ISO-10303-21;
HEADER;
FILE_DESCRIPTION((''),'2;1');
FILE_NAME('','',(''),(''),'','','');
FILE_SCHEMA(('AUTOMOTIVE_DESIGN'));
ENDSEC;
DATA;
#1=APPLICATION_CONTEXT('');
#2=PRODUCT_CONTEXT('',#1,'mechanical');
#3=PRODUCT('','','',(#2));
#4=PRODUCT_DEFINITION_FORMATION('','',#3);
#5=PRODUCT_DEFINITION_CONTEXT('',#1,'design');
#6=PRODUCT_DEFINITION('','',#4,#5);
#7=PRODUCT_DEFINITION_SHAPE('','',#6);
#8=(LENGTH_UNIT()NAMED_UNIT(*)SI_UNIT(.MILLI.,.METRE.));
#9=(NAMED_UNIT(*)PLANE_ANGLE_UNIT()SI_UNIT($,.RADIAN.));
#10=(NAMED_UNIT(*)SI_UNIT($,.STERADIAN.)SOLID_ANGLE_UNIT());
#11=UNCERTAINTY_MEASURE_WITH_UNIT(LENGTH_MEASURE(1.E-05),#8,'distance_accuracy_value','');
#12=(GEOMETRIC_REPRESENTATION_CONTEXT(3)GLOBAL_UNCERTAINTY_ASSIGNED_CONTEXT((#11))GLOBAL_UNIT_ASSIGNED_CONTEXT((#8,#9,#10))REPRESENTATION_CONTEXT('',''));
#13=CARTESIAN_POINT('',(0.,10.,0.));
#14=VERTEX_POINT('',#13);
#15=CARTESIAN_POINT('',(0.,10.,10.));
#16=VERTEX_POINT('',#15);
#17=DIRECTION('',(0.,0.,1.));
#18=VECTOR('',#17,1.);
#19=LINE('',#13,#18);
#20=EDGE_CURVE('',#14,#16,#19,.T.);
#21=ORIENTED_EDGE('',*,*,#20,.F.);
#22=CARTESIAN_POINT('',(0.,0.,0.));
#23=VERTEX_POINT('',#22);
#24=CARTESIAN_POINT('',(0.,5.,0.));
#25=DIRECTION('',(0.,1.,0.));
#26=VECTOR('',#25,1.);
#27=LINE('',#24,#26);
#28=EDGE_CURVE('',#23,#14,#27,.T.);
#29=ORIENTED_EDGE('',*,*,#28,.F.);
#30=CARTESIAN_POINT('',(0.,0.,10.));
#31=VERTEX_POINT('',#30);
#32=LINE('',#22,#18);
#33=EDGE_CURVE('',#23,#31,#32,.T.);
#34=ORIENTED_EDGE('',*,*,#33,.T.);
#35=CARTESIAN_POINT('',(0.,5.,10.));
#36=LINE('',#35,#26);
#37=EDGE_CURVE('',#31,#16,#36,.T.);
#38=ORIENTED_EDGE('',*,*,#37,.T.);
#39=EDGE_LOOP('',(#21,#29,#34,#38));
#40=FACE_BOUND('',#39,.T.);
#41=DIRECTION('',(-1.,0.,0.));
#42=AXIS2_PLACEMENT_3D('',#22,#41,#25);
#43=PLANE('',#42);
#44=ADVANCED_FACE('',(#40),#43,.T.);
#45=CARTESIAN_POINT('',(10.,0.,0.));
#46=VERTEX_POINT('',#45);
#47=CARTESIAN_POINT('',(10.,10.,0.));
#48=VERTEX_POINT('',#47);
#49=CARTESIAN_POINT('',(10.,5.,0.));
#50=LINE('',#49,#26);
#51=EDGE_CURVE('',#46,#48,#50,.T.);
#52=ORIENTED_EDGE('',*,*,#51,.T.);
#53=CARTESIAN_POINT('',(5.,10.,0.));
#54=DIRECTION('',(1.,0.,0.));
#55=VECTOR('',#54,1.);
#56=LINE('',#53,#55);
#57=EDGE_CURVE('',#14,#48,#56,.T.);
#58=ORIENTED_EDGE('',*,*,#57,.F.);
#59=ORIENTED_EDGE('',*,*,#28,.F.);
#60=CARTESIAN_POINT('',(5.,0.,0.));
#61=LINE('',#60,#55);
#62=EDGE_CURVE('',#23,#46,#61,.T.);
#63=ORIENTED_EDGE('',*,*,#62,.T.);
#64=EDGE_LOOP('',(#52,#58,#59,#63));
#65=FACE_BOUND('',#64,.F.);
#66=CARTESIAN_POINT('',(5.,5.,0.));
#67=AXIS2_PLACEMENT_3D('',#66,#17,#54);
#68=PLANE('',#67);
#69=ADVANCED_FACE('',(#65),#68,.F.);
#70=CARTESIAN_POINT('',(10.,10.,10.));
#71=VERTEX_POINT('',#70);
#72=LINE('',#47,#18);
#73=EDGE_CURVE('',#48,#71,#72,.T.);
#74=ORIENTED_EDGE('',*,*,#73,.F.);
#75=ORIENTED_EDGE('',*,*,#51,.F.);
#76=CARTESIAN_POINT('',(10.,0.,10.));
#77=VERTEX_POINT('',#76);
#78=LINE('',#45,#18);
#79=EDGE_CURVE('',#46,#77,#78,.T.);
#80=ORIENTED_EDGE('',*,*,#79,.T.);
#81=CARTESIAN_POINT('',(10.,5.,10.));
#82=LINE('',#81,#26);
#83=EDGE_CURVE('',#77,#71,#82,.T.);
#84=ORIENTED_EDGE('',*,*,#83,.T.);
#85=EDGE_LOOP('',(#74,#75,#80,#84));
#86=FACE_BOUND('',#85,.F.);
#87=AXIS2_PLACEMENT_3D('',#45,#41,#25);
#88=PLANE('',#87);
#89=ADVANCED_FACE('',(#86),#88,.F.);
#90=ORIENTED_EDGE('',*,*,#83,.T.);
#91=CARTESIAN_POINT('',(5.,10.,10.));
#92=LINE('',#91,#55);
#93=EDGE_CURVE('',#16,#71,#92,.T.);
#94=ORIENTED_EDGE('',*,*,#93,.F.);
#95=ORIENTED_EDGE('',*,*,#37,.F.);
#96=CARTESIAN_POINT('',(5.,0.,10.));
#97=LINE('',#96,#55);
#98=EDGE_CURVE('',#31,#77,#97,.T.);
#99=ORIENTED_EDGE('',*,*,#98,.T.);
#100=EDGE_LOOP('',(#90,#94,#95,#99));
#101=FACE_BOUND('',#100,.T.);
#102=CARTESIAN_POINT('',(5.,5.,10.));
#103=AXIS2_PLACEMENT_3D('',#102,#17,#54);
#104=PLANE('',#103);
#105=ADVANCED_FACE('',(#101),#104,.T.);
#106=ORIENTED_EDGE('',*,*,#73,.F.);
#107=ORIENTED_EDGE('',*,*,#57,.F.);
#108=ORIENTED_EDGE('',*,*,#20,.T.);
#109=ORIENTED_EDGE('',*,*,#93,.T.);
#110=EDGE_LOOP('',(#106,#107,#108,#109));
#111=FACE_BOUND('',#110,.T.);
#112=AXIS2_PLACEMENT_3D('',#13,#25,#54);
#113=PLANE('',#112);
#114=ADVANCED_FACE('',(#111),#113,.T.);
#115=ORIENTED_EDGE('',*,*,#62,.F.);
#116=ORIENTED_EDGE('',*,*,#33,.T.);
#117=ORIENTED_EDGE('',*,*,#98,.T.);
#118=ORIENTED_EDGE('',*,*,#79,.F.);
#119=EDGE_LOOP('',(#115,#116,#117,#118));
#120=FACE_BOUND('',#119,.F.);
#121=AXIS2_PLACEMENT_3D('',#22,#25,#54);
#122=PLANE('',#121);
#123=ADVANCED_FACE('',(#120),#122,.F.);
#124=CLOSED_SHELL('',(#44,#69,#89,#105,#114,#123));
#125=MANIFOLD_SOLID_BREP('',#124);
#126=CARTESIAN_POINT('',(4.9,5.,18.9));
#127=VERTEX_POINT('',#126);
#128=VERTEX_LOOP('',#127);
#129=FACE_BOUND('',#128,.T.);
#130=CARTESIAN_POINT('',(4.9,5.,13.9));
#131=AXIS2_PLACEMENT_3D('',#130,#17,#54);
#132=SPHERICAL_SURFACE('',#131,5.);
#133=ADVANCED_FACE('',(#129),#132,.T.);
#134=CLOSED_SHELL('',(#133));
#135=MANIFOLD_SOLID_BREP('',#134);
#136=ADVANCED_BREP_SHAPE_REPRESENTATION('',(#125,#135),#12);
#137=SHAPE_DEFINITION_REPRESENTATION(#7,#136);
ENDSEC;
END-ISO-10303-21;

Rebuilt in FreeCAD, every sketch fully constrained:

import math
import FreeCAD as App
import Part
import Sketcher

V = App.Vector
Q = App.Units.Quantity


def add_polygon(sketch, points):
    """Adds a closed chain of lines whose ends are joined by coincident constraints."""
    first, n = sketch.GeometryCount, len(points)
    for a, b in zip(points, points[1:] + points[:1]):
        sketch.addGeometry(Part.LineSegment(App.Vector(*a, 0), App.Vector(*b, 0)), False)
    for i in range(n):
        sketch.addConstraint(Sketcher.Constraint("Coincident", first + i, 2, first + (i + 1) % n, 1))

doc = App.newDocument("Part")
body = doc.addObject("PartDesign::Body", "Body")

# Sketch on XY plane
sketch1 = body.newObject("Sketcher::SketchObject", "Sketch")
sketch1.AttachmentSupport = (doc.getObject("XY_Plane"), [""])
sketch1.MapMode = "FlatFace"
add_polygon(sketch1, [(0, 10), (0, 0), (10, 0), (10, 10)])  # lines 0-3
sketch1.addConstraint(Sketcher.Constraint("Vertical", 0))
sketch1.addConstraint(Sketcher.Constraint("Horizontal", 1))
sketch1.addConstraint(Sketcher.Constraint("Vertical", 2))
sketch1.addConstraint(Sketcher.Constraint("Horizontal", 3))
sketch1.addConstraint(Sketcher.Constraint("Coincident", 0, 2, -1, 1))
sketch1.addConstraint(Sketcher.Constraint("Equal", 3, 0))
sketch1.addConstraint(Sketcher.Constraint("DistanceX", 1, 1, 1, 2, Q("10 mm")))
pad1 = body.newObject("PartDesign::Pad", "Pad")
pad1.Profile = sketch1
pad1.Length = 10
body2 = doc.addObject("PartDesign::Body", "Body001")

# Sketch on XZ plane
sketch2 = body2.newObject("Sketcher::SketchObject", "Sketch001")
sketch2.AttachmentSupport = (doc.getObject("XZ_Plane001"), [""])
sketch2.MapMode = "FlatFace"
sketch2.AttachmentOffset = App.Placement(V(0, 0, -5), App.Rotation())
sketch2.addGeometry(Part.ArcOfCircle(Part.Circle(V(4.9, 13.9, 0), V(0, 0, 1), 5), math.radians(-90), math.radians(90)), False)
sketch2.addGeometry(Part.LineSegment(V(4.9, 18.9, 0), V(4.9, 8.9, 0)), False)
sketch2.addGeometry(Part.LineSegment(V(4.9, 8.9, 0), V(4.9, 18.9, 0)), True)  # axis
sketch2.addConstraint(Sketcher.Constraint("Coincident", 0, 1, 1, 2))
sketch2.addConstraint(Sketcher.Constraint("Coincident", 1, 1, 0, 2))
sketch2.addConstraint(Sketcher.Constraint("Vertical", 1))
sketch2.addConstraint(Sketcher.Constraint("Vertical", 2))
sketch2.addConstraint(Sketcher.Constraint("Coincident", 2, 1, 0, 1))
sketch2.addConstraint(Sketcher.Constraint("Equal", 1, 2))
sketch2.addConstraint(Sketcher.Constraint("Radius", 0, Q("5 mm")))
sketch2.addConstraint(Sketcher.Constraint("DistanceX", -1, 1, 0, 3, Q("4.9 mm")))
sketch2.addConstraint(Sketcher.Constraint("DistanceY", -1, 1, 0, 3, Q("13.9 mm")))
sketch2.addConstraint(Sketcher.Constraint("DistanceX", -1, 1, 0, 1, Q("4.9 mm")))
revolution = body2.newObject("PartDesign::Revolution", "Revolution")
revolution.Profile = sketch2
revolution.ReferenceAxis = (sketch2, ["Axis0"])
revolution.Angle = 360

doc.recompute()
